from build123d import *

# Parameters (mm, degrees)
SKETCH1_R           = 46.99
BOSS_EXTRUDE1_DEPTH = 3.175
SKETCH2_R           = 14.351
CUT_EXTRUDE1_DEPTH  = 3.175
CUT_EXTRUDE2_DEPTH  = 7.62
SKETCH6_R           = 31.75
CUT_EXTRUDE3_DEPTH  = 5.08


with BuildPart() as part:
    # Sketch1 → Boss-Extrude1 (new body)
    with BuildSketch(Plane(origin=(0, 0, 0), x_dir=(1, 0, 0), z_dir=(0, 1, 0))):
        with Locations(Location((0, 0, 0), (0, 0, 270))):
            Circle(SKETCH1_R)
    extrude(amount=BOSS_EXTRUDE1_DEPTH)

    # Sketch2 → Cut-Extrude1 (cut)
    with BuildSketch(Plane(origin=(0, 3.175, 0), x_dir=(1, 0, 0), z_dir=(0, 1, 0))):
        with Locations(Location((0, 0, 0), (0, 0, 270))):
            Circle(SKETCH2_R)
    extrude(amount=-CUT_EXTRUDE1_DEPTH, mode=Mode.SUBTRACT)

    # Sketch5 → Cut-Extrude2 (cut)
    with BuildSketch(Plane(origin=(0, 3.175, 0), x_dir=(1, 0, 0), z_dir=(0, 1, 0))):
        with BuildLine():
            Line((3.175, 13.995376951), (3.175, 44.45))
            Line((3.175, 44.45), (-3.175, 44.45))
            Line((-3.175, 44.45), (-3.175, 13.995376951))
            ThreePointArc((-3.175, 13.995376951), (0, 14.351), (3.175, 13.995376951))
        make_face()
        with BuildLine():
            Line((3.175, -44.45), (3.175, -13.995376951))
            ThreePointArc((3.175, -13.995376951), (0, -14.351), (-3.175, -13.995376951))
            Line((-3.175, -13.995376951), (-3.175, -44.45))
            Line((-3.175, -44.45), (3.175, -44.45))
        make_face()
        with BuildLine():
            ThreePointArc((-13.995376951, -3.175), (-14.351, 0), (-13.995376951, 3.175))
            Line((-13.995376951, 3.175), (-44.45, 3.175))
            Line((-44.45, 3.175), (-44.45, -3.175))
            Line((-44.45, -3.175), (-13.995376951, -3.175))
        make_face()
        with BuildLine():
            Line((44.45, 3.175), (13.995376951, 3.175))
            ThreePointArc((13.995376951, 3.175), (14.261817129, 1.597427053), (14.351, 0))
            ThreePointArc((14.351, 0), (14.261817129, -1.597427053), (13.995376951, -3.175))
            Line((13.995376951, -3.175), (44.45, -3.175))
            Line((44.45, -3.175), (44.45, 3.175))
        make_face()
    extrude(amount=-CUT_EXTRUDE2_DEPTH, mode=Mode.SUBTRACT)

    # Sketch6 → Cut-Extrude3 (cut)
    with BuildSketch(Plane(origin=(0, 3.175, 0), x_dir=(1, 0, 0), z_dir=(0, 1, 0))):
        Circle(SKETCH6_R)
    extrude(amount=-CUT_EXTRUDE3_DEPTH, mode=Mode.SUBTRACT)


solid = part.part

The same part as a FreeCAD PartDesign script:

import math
import FreeCAD as App
import Part
import Sketcher
Q = App.Units.Quantity

doc = App.newDocument("Part")
body = doc.addObject("PartDesign::Body", "Body")

# Sketch on XZ plane
sketch1 = body.newObject("Sketcher::SketchObject", "Sketch")
sketch1.AttachmentSupport = (doc.getObject("XZ_Plane"), [""])
sketch1.MapMode = "FlatFace"
sketch1.addGeometry(Part.Circle(App.Vector(0, 0, 0), App.Vector(0, 0, 1), 47), False)
sketch1.addConstraint([
    Sketcher.Constraint("Coincident", 0, 3, -1, 1),
    Sketcher.Constraint("Diameter", 0, Q("3.7 in")),
])
pad1 = body.newObject("PartDesign::Pad", "Pad")
pad1.Profile = sketch1
pad1.Length = Q("0.125 in")
pad1.Reversed = True

# Sketch on XZ plane
sketch2 = body.newObject("Sketcher::SketchObject", "Sketch001")
sketch2.AttachmentSupport = (doc.getObject("XZ_Plane"), [""])
sketch2.MapMode = "FlatFace"
sketch2.AttachmentOffset = App.Placement(App.Vector(0, 0, -0.125 * 25.4), App.Rotation())
sketch2.addGeometry(Part.Circle(App.Vector(0, 0, 0), App.Vector(0, 0, 1), 14), False)
sketch2.addConstraint([
    Sketcher.Constraint("Coincident", 0, 3, -1, 1),
    Sketcher.Constraint("Diameter", 0, Q("1.13 in")),
])
pocket1 = body.newObject("PartDesign::Pocket", "Pocket")
pocket1.Profile = sketch2
pocket1.Length = Q("0.125 in")
pocket1.Reversed = True

# Sketch on XZ plane
sketch3 = body.newObject("Sketcher::SketchObject", "Sketch002")
sketch3.AttachmentSupport = (doc.getObject("XZ_Plane"), [""])
sketch3.MapMode = "FlatFace"
sketch3.AttachmentOffset = App.Placement(App.Vector(0, 0, -0.125 * 25.4), App.Rotation())
sketch3.addGeometry([
    Part.LineSegment(App.Vector(3.2, -14, 0), App.Vector(3.2, -44.5, 0)),  # 0
    Part.LineSegment(App.Vector(3.2, -44.5, 0), App.Vector(-3.2, -44.5, 0)),  # 1
    Part.LineSegment(App.Vector(-3.2, -44.5, 0), App.Vector(-3.2, -14, 0)),  # 2
    Part.ArcOfCircle(Part.Circle(App.Vector(0, 0, 0), App.Vector(0, 0, 1), 14.4), math.radians(-103), math.radians(-77)),  # 3
    Part.LineSegment(App.Vector(3.2, 44.5, 0), App.Vector(3.2, 14, 0)),  # 4
    Part.ArcOfCircle(Part.Circle(App.Vector(0, 0, 0), App.Vector(0, 0, 1), 14.4), math.radians(77), math.radians(103)),  # 5
    Part.LineSegment(App.Vector(-3.2, 14, 0), App.Vector(-3.2, 44.5, 0)),  # 6
    Part.LineSegment(App.Vector(-3.2, 44.5, 0), App.Vector(3.2, 44.5, 0)),  # 7
    Part.ArcOfCircle(Part.Circle(App.Vector(0, 0, 0), App.Vector(0, 0, 1), 14.4), math.radians(167), math.radians(193)),  # 8
    Part.LineSegment(App.Vector(-14, -3.2, 0), App.Vector(-44.5, -3.2, 0)),  # 9
    Part.LineSegment(App.Vector(-44.5, -3.2, 0), App.Vector(-44.5, 3.2, 0)),  # 10
    Part.LineSegment(App.Vector(-44.5, 3.2, 0), App.Vector(-14, 3.2, 0)),  # 11
    Part.LineSegment(App.Vector(44.5, -3.2, 0), App.Vector(14, -3.2, 0)),  # 12
    Part.ArcOfCircle(Part.Circle(App.Vector(0, 0, 0), App.Vector(0, 0, 1), 14.4), math.radians(-12.78), math.radians(0)),  # 13
    Part.ArcOfCircle(Part.Circle(App.Vector(0, 0, 0), App.Vector(0, 0, 1), 14.4), math.radians(0), math.radians(12.78)),  # 14
    Part.LineSegment(App.Vector(14, 3.2, 0), App.Vector(44.5, 3.2, 0)),  # 15
    Part.LineSegment(App.Vector(44.5, 3.2, 0), App.Vector(44.5, -3.2, 0)),  # 16
], False)
sketch3.addConstraint([
    Sketcher.Constraint("Coincident", 0, 2, 1, 1),
    Sketcher.Constraint("Coincident", 1, 2, 2, 1),
    Sketcher.Constraint("Coincident", 2, 2, 3, 1),
    Sketcher.Constraint("Coincident", 3, 2, 0, 1),
    Sketcher.Constraint("Coincident", 4, 2, 5, 1),
    Sketcher.Constraint("Coincident", 5, 2, 6, 1),
    Sketcher.Constraint("Coincident", 6, 2, 7, 1),
    Sketcher.Constraint("Coincident", 7, 2, 4, 1),
    Sketcher.Constraint("Coincident", 8, 2, 9, 1),
    Sketcher.Constraint("Coincident", 9, 2, 10, 1),
    Sketcher.Constraint("Coincident", 10, 2, 11, 1),
    Sketcher.Constraint("Coincident", 11, 2, 8, 1),
    Sketcher.Constraint("Coincident", 12, 2, 13, 1),
    Sketcher.Constraint("Tangent", 13, 2, 14, 1),
    Sketcher.Constraint("Coincident", 14, 2, 15, 1),
    Sketcher.Constraint("Coincident", 15, 2, 16, 1),
    Sketcher.Constraint("Coincident", 16, 2, 12, 1),
    Sketcher.Constraint("Vertical", 0),
    Sketcher.Constraint("Horizontal", 1),
    Sketcher.Constraint("Vertical", 2),
    Sketcher.Constraint("Vertical", 4),
    Sketcher.Constraint("Vertical", 6),
    Sketcher.Constraint("Horizontal", 7),
    Sketcher.Constraint("Horizontal", 9),
    Sketcher.Constraint("Vertical", 10),
    Sketcher.Constraint("Horizontal", 11),
    Sketcher.Constraint("Horizontal", 12),
    Sketcher.Constraint("Horizontal", 15),
    Sketcher.Constraint("Vertical", 16),
    Sketcher.Constraint("Coincident", 3, 3, -1, 1),
    Sketcher.Constraint("Coincident", 5, 3, -1, 1),
    Sketcher.Constraint("Coincident", 8, 3, -1, 1),
    Sketcher.Constraint("Coincident", 13, 3, -1, 1),
    Sketcher.Constraint("Equal", 3, 5),
    Sketcher.Constraint("Equal", 5, 8),
    Sketcher.Constraint("Equal", 8, 13),
    Sketcher.Constraint("Equal", 13, 14),
    Sketcher.Constraint("Symmetric", 0, 2, 6, 2, -1, 1),
    Sketcher.Constraint("Symmetric", 9, 2, 15, 2, -1, 1),
    Sketcher.Constraint("PointOnObject", 13, 2, -1),
    Sketcher.Constraint("Horizontal", 2, 2, 3, 2),
    Sketcher.Constraint("Horizontal", 4, 2, 5, 2),
    Sketcher.Constraint("Horizontal", 9, 2, 12, 2),
    Sketcher.Constraint("Horizontal", 11, 2, 14, 2),
    Sketcher.Constraint("Equal", 15, 0),
    Sketcher.Constraint("Equal", 7, 10),
    Sketcher.Constraint("Radius", 3, Q("0.565 in")),
    Sketcher.Constraint("DistanceX", 1, 2, 1, 1, Q("0.25 in")),
    Sketcher.Constraint("DistanceY", 0, 2, -1, 1, Q("1.75 in")),
])
pocket2 = body.newObject("PartDesign::Pocket", "Pocket001")
pocket2.Profile = sketch3
pocket2.Length = Q("0.3 in")
pocket2.Reversed = True

# Sketch on XZ plane
sketch4 = body.newObject("Sketcher::SketchObject", "Sketch003")
sketch4.AttachmentSupport = (doc.getObject("XZ_Plane"), [""])
sketch4.MapMode = "FlatFace"
sketch4.AttachmentOffset = App.Placement(App.Vector(0, 0, -0.125 * 25.4), App.Rotation())
sketch4.addGeometry(Part.Circle(App.Vector(0, 0, 0), App.Vector(0, 0, 1), 32), False)
sketch4.addConstraint([
    Sketcher.Constraint("Coincident", 0, 3, -1, 1),
    Sketcher.Constraint("Diameter", 0, Q("2.5 in")),
])
pocket3 = body.newObject("PartDesign::Pocket", "Pocket002")
pocket3.Profile = sketch4
pocket3.Length = Q("0.2 in")
pocket3.Reversed = True

doc.recompute()
